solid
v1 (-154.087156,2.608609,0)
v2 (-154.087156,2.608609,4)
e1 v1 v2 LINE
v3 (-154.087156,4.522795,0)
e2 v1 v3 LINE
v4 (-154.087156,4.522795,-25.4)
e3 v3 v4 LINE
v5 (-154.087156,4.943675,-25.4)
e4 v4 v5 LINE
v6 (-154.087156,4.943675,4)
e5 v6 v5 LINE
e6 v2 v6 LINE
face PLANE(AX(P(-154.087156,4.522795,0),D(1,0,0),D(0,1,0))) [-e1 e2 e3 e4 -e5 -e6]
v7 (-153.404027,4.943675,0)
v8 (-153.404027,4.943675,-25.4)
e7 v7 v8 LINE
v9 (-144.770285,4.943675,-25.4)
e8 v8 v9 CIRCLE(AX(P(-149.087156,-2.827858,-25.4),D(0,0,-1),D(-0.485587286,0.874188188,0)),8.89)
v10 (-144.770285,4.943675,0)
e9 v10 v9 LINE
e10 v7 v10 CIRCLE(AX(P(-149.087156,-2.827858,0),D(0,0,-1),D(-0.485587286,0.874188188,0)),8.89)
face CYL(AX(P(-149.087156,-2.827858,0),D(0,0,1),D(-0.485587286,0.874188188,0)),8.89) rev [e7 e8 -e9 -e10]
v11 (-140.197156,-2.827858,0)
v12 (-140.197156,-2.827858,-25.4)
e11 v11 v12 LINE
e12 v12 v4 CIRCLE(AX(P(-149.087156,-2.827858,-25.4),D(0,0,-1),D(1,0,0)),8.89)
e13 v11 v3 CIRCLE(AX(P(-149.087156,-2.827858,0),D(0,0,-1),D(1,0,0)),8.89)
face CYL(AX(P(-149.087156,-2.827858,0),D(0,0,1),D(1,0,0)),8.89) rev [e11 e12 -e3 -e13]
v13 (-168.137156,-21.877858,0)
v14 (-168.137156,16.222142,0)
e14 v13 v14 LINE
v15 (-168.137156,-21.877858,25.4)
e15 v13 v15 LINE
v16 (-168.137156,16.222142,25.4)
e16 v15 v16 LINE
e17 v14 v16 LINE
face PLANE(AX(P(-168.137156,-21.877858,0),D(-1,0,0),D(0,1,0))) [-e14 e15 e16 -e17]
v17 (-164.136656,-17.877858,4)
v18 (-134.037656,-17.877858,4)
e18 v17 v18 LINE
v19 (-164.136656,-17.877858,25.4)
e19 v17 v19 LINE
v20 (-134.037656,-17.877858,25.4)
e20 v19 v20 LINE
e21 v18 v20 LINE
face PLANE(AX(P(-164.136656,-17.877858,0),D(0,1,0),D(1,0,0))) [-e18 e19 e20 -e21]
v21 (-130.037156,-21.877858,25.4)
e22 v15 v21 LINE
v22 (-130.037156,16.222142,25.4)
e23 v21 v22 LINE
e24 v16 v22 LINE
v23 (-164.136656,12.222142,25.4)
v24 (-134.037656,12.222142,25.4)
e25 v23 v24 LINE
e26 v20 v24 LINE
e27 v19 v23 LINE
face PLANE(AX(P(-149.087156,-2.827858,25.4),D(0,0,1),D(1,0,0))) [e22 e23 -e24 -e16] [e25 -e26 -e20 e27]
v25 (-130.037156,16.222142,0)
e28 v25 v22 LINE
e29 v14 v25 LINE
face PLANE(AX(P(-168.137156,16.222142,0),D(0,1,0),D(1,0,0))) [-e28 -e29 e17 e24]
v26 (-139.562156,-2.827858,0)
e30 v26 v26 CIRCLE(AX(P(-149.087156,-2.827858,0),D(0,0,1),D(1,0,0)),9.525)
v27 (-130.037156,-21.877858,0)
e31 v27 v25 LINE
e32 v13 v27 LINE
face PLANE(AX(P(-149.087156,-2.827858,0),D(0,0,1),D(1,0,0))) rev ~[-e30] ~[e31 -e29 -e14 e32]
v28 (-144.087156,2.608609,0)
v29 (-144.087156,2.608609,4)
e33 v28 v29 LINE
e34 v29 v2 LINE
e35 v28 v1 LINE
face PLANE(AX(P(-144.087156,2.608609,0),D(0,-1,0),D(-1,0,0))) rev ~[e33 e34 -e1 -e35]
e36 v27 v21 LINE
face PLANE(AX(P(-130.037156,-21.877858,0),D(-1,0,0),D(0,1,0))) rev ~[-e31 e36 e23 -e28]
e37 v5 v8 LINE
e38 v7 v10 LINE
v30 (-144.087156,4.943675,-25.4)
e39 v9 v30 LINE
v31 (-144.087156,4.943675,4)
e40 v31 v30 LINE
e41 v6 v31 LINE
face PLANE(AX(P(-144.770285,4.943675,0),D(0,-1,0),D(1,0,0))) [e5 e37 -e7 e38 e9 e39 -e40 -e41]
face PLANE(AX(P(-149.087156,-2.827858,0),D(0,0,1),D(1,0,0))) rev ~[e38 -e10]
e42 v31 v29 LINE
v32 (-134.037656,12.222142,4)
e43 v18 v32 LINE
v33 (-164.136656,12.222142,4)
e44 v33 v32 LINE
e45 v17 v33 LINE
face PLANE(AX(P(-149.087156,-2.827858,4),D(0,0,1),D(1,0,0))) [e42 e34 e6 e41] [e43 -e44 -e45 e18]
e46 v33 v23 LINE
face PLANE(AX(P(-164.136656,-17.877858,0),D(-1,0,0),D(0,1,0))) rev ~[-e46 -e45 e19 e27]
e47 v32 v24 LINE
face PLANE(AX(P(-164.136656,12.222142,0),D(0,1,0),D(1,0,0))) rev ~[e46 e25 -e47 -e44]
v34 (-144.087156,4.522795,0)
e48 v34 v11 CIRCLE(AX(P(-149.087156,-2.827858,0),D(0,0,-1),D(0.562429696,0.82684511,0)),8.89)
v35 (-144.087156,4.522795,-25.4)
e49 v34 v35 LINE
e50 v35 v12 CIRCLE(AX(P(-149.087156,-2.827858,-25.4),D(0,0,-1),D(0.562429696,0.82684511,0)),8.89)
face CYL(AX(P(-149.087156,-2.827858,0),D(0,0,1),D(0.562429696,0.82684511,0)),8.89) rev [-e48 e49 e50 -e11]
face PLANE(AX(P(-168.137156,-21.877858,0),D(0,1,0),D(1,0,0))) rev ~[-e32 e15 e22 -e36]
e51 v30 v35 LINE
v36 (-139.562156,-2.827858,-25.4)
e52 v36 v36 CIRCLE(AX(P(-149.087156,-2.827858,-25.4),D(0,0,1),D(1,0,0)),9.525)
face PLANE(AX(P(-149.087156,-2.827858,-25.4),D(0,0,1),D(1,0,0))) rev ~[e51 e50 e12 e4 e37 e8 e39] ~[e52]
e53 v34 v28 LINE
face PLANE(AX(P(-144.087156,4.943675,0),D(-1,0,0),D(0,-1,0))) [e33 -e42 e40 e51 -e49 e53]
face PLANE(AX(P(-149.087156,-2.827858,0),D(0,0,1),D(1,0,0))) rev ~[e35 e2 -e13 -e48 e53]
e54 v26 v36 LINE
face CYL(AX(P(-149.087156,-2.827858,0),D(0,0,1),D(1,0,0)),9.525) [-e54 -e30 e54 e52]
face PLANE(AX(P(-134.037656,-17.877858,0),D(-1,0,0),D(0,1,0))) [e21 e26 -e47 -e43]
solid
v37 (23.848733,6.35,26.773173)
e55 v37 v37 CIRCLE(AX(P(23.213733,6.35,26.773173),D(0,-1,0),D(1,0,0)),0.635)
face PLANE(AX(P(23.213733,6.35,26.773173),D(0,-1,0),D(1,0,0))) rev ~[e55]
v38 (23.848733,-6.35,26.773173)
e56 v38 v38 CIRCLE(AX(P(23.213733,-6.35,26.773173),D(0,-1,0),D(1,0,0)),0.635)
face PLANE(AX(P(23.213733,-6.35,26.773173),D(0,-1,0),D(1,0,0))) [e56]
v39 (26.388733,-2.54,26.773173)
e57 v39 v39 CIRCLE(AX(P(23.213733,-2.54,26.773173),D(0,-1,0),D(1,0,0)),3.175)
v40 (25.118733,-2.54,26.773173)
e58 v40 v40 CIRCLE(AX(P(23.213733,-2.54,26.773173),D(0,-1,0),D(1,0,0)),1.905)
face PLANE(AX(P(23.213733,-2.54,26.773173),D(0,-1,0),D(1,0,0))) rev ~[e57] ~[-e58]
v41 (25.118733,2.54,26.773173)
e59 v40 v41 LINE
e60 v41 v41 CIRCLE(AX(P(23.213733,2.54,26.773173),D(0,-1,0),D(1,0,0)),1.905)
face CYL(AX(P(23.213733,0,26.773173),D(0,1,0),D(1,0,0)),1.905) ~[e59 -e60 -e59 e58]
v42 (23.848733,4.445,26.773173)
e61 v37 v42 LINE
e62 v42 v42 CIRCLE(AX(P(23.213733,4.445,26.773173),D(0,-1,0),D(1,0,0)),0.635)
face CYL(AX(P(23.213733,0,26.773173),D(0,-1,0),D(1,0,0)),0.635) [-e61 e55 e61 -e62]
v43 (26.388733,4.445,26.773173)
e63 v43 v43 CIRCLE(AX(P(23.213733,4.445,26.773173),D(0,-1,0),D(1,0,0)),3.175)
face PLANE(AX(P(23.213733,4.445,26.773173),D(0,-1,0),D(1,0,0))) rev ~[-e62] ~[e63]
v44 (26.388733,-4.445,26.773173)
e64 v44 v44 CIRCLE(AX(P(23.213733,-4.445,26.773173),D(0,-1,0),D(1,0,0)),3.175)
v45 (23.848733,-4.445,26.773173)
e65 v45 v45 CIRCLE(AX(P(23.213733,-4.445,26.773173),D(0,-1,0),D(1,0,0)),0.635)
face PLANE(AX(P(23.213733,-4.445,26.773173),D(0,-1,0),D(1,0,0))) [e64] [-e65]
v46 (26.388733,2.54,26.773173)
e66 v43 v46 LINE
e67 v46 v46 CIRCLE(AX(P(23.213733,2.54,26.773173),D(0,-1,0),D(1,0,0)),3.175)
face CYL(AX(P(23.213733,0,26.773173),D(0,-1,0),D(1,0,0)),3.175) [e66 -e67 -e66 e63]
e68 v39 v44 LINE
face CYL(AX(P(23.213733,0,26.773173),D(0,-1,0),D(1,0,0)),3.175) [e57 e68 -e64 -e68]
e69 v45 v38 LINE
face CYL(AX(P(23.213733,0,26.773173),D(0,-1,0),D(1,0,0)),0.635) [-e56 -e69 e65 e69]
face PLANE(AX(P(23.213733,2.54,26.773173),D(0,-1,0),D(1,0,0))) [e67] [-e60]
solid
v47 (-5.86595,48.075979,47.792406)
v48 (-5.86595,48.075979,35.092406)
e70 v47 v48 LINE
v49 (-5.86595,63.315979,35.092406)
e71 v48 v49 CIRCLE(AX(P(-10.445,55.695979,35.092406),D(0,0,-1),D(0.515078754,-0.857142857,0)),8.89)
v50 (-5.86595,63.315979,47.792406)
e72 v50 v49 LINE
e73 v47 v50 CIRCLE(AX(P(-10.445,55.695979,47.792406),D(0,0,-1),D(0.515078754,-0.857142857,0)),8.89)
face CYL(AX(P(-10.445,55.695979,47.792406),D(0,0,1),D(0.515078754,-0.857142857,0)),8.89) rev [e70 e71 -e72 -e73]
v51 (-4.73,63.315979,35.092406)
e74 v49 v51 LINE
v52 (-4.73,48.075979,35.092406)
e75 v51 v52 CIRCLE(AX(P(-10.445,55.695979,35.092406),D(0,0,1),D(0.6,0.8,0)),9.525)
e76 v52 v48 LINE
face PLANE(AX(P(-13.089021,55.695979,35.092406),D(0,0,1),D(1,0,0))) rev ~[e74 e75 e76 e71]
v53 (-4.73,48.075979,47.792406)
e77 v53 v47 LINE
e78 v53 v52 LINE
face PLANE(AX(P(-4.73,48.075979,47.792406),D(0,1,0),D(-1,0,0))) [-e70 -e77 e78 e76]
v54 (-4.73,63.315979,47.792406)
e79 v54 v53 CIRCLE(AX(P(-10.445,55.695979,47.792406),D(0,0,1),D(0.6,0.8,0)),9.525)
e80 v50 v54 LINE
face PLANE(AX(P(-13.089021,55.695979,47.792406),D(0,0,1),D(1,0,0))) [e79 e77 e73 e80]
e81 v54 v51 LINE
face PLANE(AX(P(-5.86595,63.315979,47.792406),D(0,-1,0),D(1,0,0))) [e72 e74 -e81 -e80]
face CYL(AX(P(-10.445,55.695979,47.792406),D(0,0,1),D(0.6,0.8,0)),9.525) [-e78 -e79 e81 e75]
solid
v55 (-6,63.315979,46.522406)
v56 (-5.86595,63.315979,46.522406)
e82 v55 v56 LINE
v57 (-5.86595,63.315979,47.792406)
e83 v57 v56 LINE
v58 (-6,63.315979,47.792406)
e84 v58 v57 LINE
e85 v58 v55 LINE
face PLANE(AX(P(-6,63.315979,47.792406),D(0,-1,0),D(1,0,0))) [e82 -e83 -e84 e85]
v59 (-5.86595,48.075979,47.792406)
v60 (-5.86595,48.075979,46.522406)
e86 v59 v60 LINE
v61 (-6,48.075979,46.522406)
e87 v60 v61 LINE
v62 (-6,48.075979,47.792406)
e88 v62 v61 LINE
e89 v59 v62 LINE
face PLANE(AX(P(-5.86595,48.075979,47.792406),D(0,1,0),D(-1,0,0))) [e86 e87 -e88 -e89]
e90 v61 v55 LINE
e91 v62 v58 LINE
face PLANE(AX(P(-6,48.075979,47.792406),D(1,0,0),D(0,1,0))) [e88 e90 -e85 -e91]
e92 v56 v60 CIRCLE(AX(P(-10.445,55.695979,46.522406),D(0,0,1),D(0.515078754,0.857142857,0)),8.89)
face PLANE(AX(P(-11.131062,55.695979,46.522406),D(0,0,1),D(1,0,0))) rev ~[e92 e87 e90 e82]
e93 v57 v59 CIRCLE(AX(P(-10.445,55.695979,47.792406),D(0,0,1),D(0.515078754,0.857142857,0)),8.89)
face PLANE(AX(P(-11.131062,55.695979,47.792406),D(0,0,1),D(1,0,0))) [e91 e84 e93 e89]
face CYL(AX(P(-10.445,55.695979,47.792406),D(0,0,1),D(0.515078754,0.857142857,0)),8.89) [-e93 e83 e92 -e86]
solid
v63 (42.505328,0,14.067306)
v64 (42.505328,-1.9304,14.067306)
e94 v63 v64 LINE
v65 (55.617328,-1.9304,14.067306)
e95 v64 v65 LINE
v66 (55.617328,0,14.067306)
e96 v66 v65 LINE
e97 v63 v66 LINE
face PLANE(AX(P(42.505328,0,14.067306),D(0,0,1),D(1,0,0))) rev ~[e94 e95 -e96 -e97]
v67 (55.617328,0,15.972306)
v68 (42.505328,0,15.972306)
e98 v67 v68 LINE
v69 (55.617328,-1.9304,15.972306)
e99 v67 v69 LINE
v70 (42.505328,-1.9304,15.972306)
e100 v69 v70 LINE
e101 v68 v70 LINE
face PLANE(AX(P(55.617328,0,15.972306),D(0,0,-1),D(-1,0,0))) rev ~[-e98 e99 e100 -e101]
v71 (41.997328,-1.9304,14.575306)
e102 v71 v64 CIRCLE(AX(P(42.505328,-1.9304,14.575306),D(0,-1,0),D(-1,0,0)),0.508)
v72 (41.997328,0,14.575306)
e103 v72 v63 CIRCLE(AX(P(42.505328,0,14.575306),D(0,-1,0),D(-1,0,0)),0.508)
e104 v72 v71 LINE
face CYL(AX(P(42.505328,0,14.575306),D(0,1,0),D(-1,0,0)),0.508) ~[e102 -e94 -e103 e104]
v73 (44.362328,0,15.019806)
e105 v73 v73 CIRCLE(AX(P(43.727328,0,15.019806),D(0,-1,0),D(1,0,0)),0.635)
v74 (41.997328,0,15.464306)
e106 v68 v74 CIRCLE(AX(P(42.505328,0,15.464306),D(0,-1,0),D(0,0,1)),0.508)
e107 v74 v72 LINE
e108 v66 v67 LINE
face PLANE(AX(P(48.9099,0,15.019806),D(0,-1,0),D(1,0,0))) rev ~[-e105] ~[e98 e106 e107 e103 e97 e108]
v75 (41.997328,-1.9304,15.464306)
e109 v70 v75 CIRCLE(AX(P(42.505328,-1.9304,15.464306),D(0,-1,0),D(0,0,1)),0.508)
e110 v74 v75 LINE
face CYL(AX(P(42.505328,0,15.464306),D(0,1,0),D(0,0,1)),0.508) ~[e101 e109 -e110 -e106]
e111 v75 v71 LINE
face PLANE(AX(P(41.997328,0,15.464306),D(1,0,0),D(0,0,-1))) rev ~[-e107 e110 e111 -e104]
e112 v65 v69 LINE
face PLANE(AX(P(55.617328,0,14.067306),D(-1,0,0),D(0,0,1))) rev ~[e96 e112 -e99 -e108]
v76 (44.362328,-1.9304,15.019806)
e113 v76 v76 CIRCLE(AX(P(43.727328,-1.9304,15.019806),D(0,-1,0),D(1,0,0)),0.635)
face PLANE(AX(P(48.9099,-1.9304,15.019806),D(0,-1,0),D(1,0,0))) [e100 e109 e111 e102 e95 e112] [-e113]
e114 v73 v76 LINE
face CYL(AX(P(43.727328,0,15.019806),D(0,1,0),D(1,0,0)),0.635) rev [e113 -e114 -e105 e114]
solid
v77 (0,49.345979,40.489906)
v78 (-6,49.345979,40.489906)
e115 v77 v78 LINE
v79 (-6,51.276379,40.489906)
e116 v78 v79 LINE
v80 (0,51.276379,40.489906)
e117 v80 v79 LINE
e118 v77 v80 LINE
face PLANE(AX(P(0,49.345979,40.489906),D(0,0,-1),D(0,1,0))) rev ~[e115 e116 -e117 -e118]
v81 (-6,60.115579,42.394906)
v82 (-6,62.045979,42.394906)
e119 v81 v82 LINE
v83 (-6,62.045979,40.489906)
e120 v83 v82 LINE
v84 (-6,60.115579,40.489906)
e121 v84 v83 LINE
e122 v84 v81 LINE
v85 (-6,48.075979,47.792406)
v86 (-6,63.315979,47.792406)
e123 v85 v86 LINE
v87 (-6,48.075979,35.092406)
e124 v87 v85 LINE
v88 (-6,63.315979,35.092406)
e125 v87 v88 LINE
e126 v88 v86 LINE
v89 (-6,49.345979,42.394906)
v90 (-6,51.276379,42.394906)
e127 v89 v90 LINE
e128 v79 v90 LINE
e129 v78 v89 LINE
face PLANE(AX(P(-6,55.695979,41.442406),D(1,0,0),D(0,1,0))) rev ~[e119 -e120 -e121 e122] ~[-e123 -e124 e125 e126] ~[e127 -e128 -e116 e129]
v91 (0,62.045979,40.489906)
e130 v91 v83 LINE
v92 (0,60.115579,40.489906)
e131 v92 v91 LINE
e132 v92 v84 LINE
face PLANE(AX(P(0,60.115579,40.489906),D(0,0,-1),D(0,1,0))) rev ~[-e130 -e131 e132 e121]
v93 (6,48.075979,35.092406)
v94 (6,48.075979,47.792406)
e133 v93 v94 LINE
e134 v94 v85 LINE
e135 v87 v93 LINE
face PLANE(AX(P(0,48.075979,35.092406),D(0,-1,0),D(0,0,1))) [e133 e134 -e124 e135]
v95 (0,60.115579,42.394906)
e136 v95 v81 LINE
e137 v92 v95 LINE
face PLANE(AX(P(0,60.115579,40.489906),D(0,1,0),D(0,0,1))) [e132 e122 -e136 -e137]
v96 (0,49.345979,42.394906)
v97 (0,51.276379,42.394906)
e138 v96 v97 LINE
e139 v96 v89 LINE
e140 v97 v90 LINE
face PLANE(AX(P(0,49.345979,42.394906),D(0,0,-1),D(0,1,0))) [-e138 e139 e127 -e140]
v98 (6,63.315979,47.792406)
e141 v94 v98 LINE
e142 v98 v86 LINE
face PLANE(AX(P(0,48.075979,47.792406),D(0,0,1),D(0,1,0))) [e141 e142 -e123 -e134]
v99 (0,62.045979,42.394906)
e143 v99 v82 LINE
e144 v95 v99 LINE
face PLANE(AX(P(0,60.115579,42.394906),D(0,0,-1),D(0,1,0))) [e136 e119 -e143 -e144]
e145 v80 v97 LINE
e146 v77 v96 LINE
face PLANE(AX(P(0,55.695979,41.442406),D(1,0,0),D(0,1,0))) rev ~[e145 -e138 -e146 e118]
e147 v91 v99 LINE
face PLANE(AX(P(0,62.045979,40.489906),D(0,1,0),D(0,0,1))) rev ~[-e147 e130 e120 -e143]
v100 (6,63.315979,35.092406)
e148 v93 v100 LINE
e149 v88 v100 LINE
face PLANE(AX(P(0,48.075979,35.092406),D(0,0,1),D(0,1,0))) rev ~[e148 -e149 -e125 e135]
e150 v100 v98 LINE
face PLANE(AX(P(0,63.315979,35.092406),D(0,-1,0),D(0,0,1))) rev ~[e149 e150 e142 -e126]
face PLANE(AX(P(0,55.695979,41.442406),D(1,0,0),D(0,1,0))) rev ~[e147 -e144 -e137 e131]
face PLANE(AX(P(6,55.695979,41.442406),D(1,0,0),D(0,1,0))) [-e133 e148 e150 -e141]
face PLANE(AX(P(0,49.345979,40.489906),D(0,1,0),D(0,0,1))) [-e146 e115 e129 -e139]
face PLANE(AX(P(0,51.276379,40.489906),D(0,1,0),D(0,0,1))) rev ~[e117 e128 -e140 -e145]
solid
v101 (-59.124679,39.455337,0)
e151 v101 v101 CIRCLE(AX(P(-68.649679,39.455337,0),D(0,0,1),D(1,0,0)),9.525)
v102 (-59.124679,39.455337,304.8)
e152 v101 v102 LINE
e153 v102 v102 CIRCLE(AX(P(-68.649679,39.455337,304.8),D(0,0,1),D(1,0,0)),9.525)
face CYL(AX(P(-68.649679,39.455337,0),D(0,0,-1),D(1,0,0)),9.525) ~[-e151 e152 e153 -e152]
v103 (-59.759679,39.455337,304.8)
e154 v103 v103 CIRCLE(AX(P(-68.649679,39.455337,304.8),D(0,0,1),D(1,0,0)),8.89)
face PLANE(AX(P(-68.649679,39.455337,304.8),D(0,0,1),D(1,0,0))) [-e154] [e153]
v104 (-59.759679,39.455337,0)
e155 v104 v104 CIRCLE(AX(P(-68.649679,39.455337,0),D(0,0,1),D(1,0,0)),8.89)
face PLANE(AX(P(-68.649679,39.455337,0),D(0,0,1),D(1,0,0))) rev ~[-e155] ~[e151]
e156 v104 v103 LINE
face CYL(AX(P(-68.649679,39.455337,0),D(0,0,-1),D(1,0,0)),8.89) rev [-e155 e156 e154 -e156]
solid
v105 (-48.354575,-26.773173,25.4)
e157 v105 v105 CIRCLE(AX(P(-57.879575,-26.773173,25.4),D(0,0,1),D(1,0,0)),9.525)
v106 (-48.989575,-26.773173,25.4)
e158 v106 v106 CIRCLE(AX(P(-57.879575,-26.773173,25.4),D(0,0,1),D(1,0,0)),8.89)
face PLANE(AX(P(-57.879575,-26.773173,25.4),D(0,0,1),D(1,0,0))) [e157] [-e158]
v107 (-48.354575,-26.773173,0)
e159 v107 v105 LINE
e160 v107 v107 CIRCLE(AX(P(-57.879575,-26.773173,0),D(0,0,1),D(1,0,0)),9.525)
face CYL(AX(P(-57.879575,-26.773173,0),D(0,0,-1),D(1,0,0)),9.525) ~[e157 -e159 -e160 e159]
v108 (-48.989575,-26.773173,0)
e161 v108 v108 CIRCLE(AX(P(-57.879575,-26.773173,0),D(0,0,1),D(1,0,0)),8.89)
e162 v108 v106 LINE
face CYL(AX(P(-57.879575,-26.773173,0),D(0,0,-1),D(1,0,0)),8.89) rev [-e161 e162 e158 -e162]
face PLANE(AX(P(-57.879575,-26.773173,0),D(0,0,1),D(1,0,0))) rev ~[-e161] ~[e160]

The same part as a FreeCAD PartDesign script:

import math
import FreeCAD as App
import Part
import Sketcher
Q = App.Units.Quantity


def add_polygon(sketch, points):
    """Adds a closed chain of lines whose ends are joined by coincident constraints."""
    first, n = sketch.GeometryCount, len(points)
    for a, b in zip(points, points[1:] + points[:1]):
        sketch.addGeometry(Part.LineSegment(App.Vector(*a, 0), App.Vector(*b, 0)), False)
    for i in range(n):
        sketch.addConstraint(Sketcher.Constraint("Coincident", first + i, 2, first + (i + 1) % n, 1))

doc = App.newDocument("Part")
params = doc.addObject("Spreadsheet::Sheet", "Params")
for row, (alias, value) in enumerate([
    ("sketch1_diameter", "0.7 in"),
    ("sketch1_diameter2", "0.75 in"),
    ("pad1_length", "1 in"),
    ("sketch2_diameter", "0.05 in"),
    ("pad2_length", "0.5 in"),
    ("sketch3_diameter", "0.25 in"),
    ("sketch3_diameter2", "0.05 in"),
    ("pad3_length", "0.35 in"),
    ("sketch4_diameter", "0.25 in"),
    ("sketch4_diameter2", "0.15 in"),
    ("pocket1_length", "0.2 in"),
    ("sketch5_diameter", "0.05 in"),
    ("sketch5_radius", "0.02 in"),
    ("sketch5_height", "0.075 in"),
    ("pad4_length", "0.076 in"),
    ("sketch6_width", "0.6 in"),
    ("sketch6_height", "0.5 in"),
    ("sketch6_width2", "0.076 in"),
    ("sketch6_height2", "0.075 in"),
    ("pad5_length", "6 mm"),
    ("sketch7_width", "0.6 in"),
    ("sketch7_height", "0.5 in"),
    ("pad6_length", "6 mm"),
    ("sketch8_radius", "0.35 in"),
    ("sketch8_radius2", "0.375 in"),
    ("pad7_length", "0.5 in"),
    ("sketch9_radius", "0.35 in"),
    ("sketch9_height", "0.6 in"),
    ("pad8_length", "0.05 in"),
    ("sketch10_width", "1.5 in"),
    ("sketch10_width2", "1.185 in"),
    ("pad9_length", "1 in"),
    ("sketch11_width", "1.185 in"),
    ("pad10_length", "4 mm"),
    ("sketch12_diameter", "0.75 in"),
    ("sketch12_radius", "0.35 in"),
    ("pad11_length", "1 in"),
    ("sketch13_diameter", "0.7 in"),
    ("sketch13_diameter2", "0.75 in"),
    ("pad12_length", "12 in"),
], start=1):
    params.set(f"A{row}", alias)
    params.set(f"B{row}", "=" + value)
    params.setAlias(f"B{row}", alias)

body = doc.addObject("PartDesign::Body", "Body")

# Sketch on XY plane
sketch1 = body.newObject("Sketcher::SketchObject", "Sketch")
sketch1.AttachmentSupport = (doc.getObject("XY_Plane"), [""])
sketch1.MapMode = "FlatFace"
sketch1.addGeometry(Part.Circle(App.Vector(-57.879575, -26.773173, 0), App.Vector(0, 0, 1), 9.525), False)
sketch1.addGeometry(Part.Circle(App.Vector(-57.879575, -26.773173, 0), App.Vector(0, 0, 1), 8.89), False)
sketch1.addConstraint(Sketcher.Constraint("Coincident", 1, 3, 0, 3))
sketch1.addConstraint(Sketcher.Constraint("Diameter", 1, Q("0.7 in")))
sketch1.addConstraint(Sketcher.Constraint("Diameter", 0, Q("0.75 in")))
sketch1.addConstraint(Sketcher.Constraint("DistanceX", 0, 3, -1, 1, Q("57.879575 mm")))
sketch1.addConstraint(Sketcher.Constraint("DistanceY", 0, 3, -1, 1, Q("26.773173 mm")))
sketch1.setExpression("Constraints[1]", "Params.sketch1_diameter")
sketch1.setExpression("Constraints[2]", "Params.sketch1_diameter2")
pad1 = body.newObject("PartDesign::Pad", "Pad")
pad1.Profile = sketch1
pad1.setExpression("Length", "Params.pad1_length")
body2 = doc.addObject("PartDesign::Body", "Body001")

# Sketch on XZ plane
sketch2 = body2.newObject("Sketcher::SketchObject", "Sketch001")
sketch2.AttachmentSupport = (doc.getObject("XZ_Plane001"), [""])
sketch2.MapMode = "FlatFace"
sketch2.addGeometry(Part.Circle(App.Vector(23.213733, 26.773173, 0), App.Vector(0, 0, 1), 0.635), False)
sketch2.addConstraint(Sketcher.Constraint("Diameter", 0, Q("0.05 in")))
sketch2.addConstraint(Sketcher.Constraint("DistanceX", -1, 1, 0, 3, Q("23.213733 mm")))
sketch2.addConstraint(Sketcher.Constraint("DistanceY", -1, 1, 0, 3, Q("26.773173 mm")))
sketch2.setExpression("Constraints[0]", "Params.sketch2_diameter")
pad2 = body2.newObject("PartDesign::Pad", "Pad001")
pad2.Profile = sketch2
pad2.setExpression("Length", "Params.pad2_length")
pad2.Midplane = True

# Sketch on XZ plane
sketch3 = body2.newObject("Sketcher::SketchObject", "Sketch002")
sketch3.AttachmentSupport = (doc.getObject("XZ_Plane001"), [""])
sketch3.MapMode = "FlatFace"
sketch3.addGeometry(Part.Circle(App.Vector(23.213733, 26.773173, 0), App.Vector(0, 0, 1), 3.175), False)
sketch3.addGeometry(Part.Circle(App.Vector(23.213733, 26.773173, 0), App.Vector(0, 0, 1), 0.635), False)
sketch3.addConstraint(Sketcher.Constraint("Coincident", 1, 3, 0, 3))
sketch3.addConstraint(Sketcher.Constraint("Diameter", 0, Q("0.25 in")))
sketch3.addConstraint(Sketcher.Constraint("Diameter", 1, Q("0.05 in")))
sketch3.addConstraint(Sketcher.Constraint("DistanceX", -1, 1, 0, 3, Q("23.213733 mm")))
sketch3.addConstraint(Sketcher.Constraint("DistanceY", -1, 1, 0, 3, Q("26.773173 mm")))
sketch3.setExpression("Constraints[1]", "Params.sketch3_diameter")
sketch3.setExpression("Constraints[2]", "Params.sketch3_diameter2")
pad3 = body2.newObject("PartDesign::Pad", "Pad002")
pad3.Profile = sketch3
pad3.setExpression("Length", "Params.pad3_length")
pad3.Midplane = True

# Sketch on XZ plane
sketch4 = body2.newObject("Sketcher::SketchObject", "Sketch003")
sketch4.AttachmentSupport = (doc.getObject("XZ_Plane001"), [""])
sketch4.MapMode = "FlatFace"
sketch4.addGeometry(Part.Circle(App.Vector(23.213733, 26.773173, 0), App.Vector(0, 0, 1), 3.175), False)
sketch4.addGeometry(Part.Circle(App.Vector(23.213733, 26.773173, 0), App.Vector(0, 0, 1), 1.905), False)
sketch4.addConstraint(Sketcher.Constraint("Coincident", 1, 3, 0, 3))
sketch4.addConstraint(Sketcher.Constraint("Diameter", 0, Q("0.25 in")))
sketch4.addConstraint(Sketcher.Constraint("Diameter", 1, Q("0.15 in")))
sketch4.addConstraint(Sketcher.Constraint("DistanceX", -1, 1, 0, 3, Q("23.213733 mm")))
sketch4.addConstraint(Sketcher.Constraint("DistanceY", -1, 1, 0, 3, Q("26.773173 mm")))
sketch4.setExpression("Constraints[1]", "Params.sketch4_diameter")
sketch4.setExpression("Constraints[2]", "Params.sketch4_diameter2")
pocket1 = body2.newObject("PartDesign::Pocket", "Pocket")
pocket1.Profile = sketch4
pocket1.setExpression("Length", "Params.pocket1_length")
pocket1.Midplane = True
body3 = doc.addObject("PartDesign::Body", "Body002")

# Sketch on XZ plane
sketch5 = body3.newObject("Sketcher::SketchObject", "Sketch004")
sketch5.AttachmentSupport = (doc.getObject("XZ_Plane002"), [""])
sketch5.MapMode = "FlatFace"
sketch5.addGeometry(Part.ArcOfCircle(Part.Circle(App.Vector(42.505328, 14.575306, 0), App.Vector(0, 0, 1), 0.508), math.radians(180), math.radians(270)), False)
sketch5.addGeometry(Part.LineSegment(App.Vector(42.505328, 14.067306, 0), App.Vector(55.617328, 14.067306, 0)), False)
sketch5.addGeometry(Part.LineSegment(App.Vector(55.617328, 14.067306, 0), App.Vector(55.617328, 15.972306, 0)), False)
sketch5.addGeometry(Part.LineSegment(App.Vector(55.617328, 15.972306, 0), App.Vector(42.505328, 15.972306, 0)), False)
sketch5.addGeometry(Part.ArcOfCircle(Part.Circle(App.Vector(42.505328, 15.464306, 0), App.Vector(0, 0, 1), 0.508), math.radians(90), math.radians(180)), False)
sketch5.addGeometry(Part.LineSegment(App.Vector(41.997328, 15.464306, 0), App.Vector(41.997328, 14.575306, 0)), False)
sketch5.addGeometry(Part.Circle(App.Vector(43.727328, 15.019806, 0), App.Vector(0, 0, 1), 0.635), False)
sketch5.addConstraint(Sketcher.Constraint("Tangent", 0, 2, 1, 1))
sketch5.addConstraint(Sketcher.Constraint("Coincident", 1, 2, 2, 1))
sketch5.addConstraint(Sketcher.Constraint("Coincident", 2, 2, 3, 1))
sketch5.addConstraint(Sketcher.Constraint("Tangent", 3, 2, 4, 1))
sketch5.addConstraint(Sketcher.Constraint("Tangent", 4, 2, 5, 1))
sketch5.addConstraint(Sketcher.Constraint("Tangent", 5, 2, 0, 1))
sketch5.addConstraint(Sketcher.Constraint("Horizontal", 1))
sketch5.addConstraint(Sketcher.Constraint("Vertical", 2))
sketch5.addConstraint(Sketcher.Constraint("Horizontal", 3))
sketch5.addConstraint(Sketcher.Constraint("Vertical", 5))
sketch5.addConstraint(Sketcher.Constraint("Equal", 0, 4))
sketch5.addConstraint(Sketcher.Constraint("Diameter", 6, Q("0.05 in")))
sketch5.addConstraint(Sketcher.Constraint("Radius", 0, Q("0.02 in")))
sketch5.addConstraint(Sketcher.Constraint("DistanceY", 2, 1, 2, 2, Q("0.075 in")))
sketch5.addConstraint(Sketcher.Constraint("DistanceX", 1, 1, 1, 2, Q("13.112 mm")))
sketch5.addConstraint(Sketcher.Constraint("DistanceY", 0, 3, 6, 3, Q("0.0175 in")))
sketch5.addConstraint(Sketcher.Constraint("DistanceX", 0, 3, 6, 3, Q("1.222 mm")))
sketch5.addConstraint(Sketcher.Constraint("DistanceX", -1, 1, 0, 3, Q("42.505328 mm")))
sketch5.addConstraint(Sketcher.Constraint("DistanceY", -1, 1, 0, 3, Q("14.575306 mm")))
sketch5.setExpression("Constraints[11]", "Params.sketch5_diameter")
sketch5.setExpression("Constraints[12]", "Params.sketch5_radius")
sketch5.setExpression("Constraints[13]", "Params.sketch5_height")
pad4 = body3.newObject("PartDesign::Pad", "Pad003")
pad4.Profile = sketch5
pad4.setExpression("Length", "Params.pad4_length")
body4 = doc.addObject("PartDesign::Body", "Body003")

# Sketch on YZ plane
sketch6 = body4.newObject("Sketcher::SketchObject", "Sketch005")
sketch6.AttachmentSupport = (doc.getObject("YZ_Plane003"), [""])
sketch6.MapMode = "FlatFace"
add_polygon(sketch6, [(48.075979, 47.792406), (48.075979, 35.092406), (63.315979, 35.092406), (63.315979, 47.792406)])  # lines 0-3
add_polygon(sketch6, [(51.276379, 40.489906), (49.345979, 40.489906), (49.345979, 42.394906), (51.276379, 42.394906)])  # lines 4-7
add_polygon(sketch6, [(62.045979, 40.489906), (60.115579, 40.489906), (60.115579, 42.394906), (62.045979, 42.394906)])  # lines 8-11
sketch6.addConstraint(Sketcher.Constraint("Vertical", 0))
sketch6.addConstraint(Sketcher.Constraint("Horizontal", 1))
sketch6.addConstraint(Sketcher.Constraint("Vertical", 2))
sketch6.addConstraint(Sketcher.Constraint("Horizontal", 3))
sketch6.addConstraint(Sketcher.Constraint("Horizontal", 4))
sketch6.addConstraint(Sketcher.Constraint("Vertical", 5))
sketch6.addConstraint(Sketcher.Constraint("Horizontal", 6))
sketch6.addConstraint(Sketcher.Constraint("Vertical", 7))
sketch6.addConstraint(Sketcher.Constraint("Horizontal", 8))
sketch6.addConstraint(Sketcher.Constraint("Vertical", 9))
sketch6.addConstraint(Sketcher.Constraint("Horizontal", 10))
sketch6.addConstraint(Sketcher.Constraint("Vertical", 11))
sketch6.addConstraint(Sketcher.Constraint("Horizontal", 7, 2, 8, 2))
sketch6.addConstraint(Sketcher.Constraint("Horizontal", 6, 2, 9, 2))
sketch6.addConstraint(Sketcher.Constraint("Equal", 6, 8))
sketch6.addConstraint(Sketcher.Constraint("DistanceX", 1, 1, 1, 2, Q("0.6 in")))
sketch6.addConstraint(Sketcher.Constraint("DistanceY", 0, 2, 0, 1, Q("0.5 in")))
sketch6.addConstraint(Sketcher.Constraint("DistanceX", 4, 2, 4, 1, Q("0.076 in")))
sketch6.addConstraint(Sketcher.Constraint("DistanceY", 5, 1, 5, 2, Q("0.075 in")))
sketch6.addConstraint(Sketcher.Constraint("DistanceX", 0, 2, 4, 2, Q("0.05 in")))
sketch6.addConstraint(Sketcher.Constraint("DistanceX", 10, 2, 2, 2, Q("0.05 in")))
sketch6.addConstraint(Sketcher.Constraint("DistanceY", 0, 2, 4, 2, Q("0.2125 in")))
sketch6.addConstraint(Sketcher.Constraint("DistanceX", -1, 1, 0, 2, Q("48.075979 mm")))
sketch6.addConstraint(Sketcher.Constraint("DistanceY", -1, 1, 0, 2, Q("35.092406 mm")))
sketch6.setExpression("Constraints[27]", "Params.sketch6_width")
sketch6.setExpression("Constraints[28]", "Params.sketch6_height")
sketch6.setExpression("Constraints[29]", "Params.sketch6_width2")
sketch6.setExpression("Constraints[30]", "Params.sketch6_height2")
pad5 = body4.newObject("PartDesign::Pad", "Pad004")
pad5.Profile = sketch6
pad5.setExpression("Length", "Params.pad5_length")
pad5.Reversed = True

# Sketch on YZ plane
sketch7 = body4.newObject("Sketcher::SketchObject", "Sketch006")
sketch7.AttachmentSupport = (doc.getObject("YZ_Plane003"), [""])
sketch7.MapMode = "FlatFace"
add_polygon(sketch7, [(48.075979, 47.792406), (48.075979, 35.092406), (63.315979, 35.092406), (63.315979, 47.792406)])  # lines 0-3
sketch7.addConstraint(Sketcher.Constraint("Vertical", 0))
sketch7.addConstraint(Sketcher.Constraint("Horizontal", 1))
sketch7.addConstraint(Sketcher.Constraint("Vertical", 2))
sketch7.addConstraint(Sketcher.Constraint("Horizontal", 3))
sketch7.addConstraint(Sketcher.Constraint("DistanceX", 1, 1, 1, 2, Q("0.6 in")))
sketch7.addConstraint(Sketcher.Constraint("DistanceY", 0, 2, 0, 1, Q("0.5 in")))
sketch7.addConstraint(Sketcher.Constraint("DistanceX", -1, 1, 0, 2, Q("48.075979 mm")))
sketch7.addConstraint(Sketcher.Constraint("DistanceY", -1, 1, 0, 2, Q("35.092406 mm")))
sketch7.setExpression("Constraints[8]", "Params.sketch7_width")
sketch7.setExpression("Constraints[9]", "Params.sketch7_height")
pad6 = body4.newObject("PartDesign::Pad", "Pad005")
pad6.Profile = sketch7
pad6.setExpression("Length", "Params.pad6_length")
body5 = doc.addObject("PartDesign::Body", "Body004")

# Sketch on XY plane
sketch8 = body5.newObject("Sketcher::SketchObject", "Sketch007")
sketch8.AttachmentSupport = (doc.getObject("XY_Plane004"), [""])
sketch8.MapMode = "FlatFace"
sketch8.AttachmentOffset = App.Placement(App.Vector(0, 0, 47.792406), App.Rotation())
sketch8.addGeometry(Part.LineSegment(App.Vector(-5.86595, 63.315979, 0), App.Vector(-4.73, 63.315979, 0)), False)
sketch8.addGeometry(Part.ArcOfCircle(Part.Circle(App.Vector(-10.445, 55.695979, 0), App.Vector(0, 0, 1), 9.525), math.radians(53.130102), math.radians(306.869898)), False)
sketch8.addGeometry(Part.LineSegment(App.Vector(-4.73, 48.075979, 0), App.Vector(-5.86595, 48.075979, 0)), False)
sketch8.addGeometry(Part.ArcOfCircle(Part.Circle(App.Vector(-10.445, 55.695979, 0), App.Vector(0, 0, 1), 8.89), math.radians(58.997281), math.radians(301.002719)), False)
sketch8.addConstraint(Sketcher.Constraint("Coincident", 0, 2, 1, 1))
sketch8.addConstraint(Sketcher.Constraint("Coincident", 1, 2, 2, 1))
sketch8.addConstraint(Sketcher.Constraint("Coincident", 2, 2, 3, 2))
sketch8.addConstraint(Sketcher.Constraint("Coincident", 3, 1, 0, 1))
sketch8.addConstraint(Sketcher.Constraint("Horizontal", 0))
sketch8.addConstraint(Sketcher.Constraint("Horizontal", 2))
sketch8.addConstraint(Sketcher.Constraint("Coincident", 3, 3, 1, 3))
sketch8.addConstraint(Sketcher.Constraint("Vertical", 0, 2, 1, 2))
sketch8.addConstraint(Sketcher.Constraint("Radius", 3, Q("0.35 in")))
sketch8.addConstraint(Sketcher.Constraint("Radius", 1, Q("0.375 in")))
sketch8.addConstraint(Sketcher.Constraint("DistanceY", 1, 3, 0, 2, Q("0.3 in")))
sketch8.addConstraint(Sketcher.Constraint("DistanceX", 1, 3, -1, 1, Q("10.445 mm")))
sketch8.addConstraint(Sketcher.Constraint("DistanceY", -1, 1, 1, 3, Q("55.695979 mm")))
sketch8.setExpression("Constraints[8]", "Params.sketch8_radius")
sketch8.setExpression("Constraints[9]", "Params.sketch8_radius2")
pad7 = body5.newObject("PartDesign::Pad", "Pad006")
pad7.Profile = sketch8
pad7.setExpression("Length", "Params.pad7_length")
pad7.Reversed = True
body6 = doc.addObject("PartDesign::Body", "Body005")

# Sketch on XY plane
sketch9 = body6.newObject("Sketcher::SketchObject", "Sketch008")
sketch9.AttachmentSupport = (doc.getObject("XY_Plane005"), [""])
sketch9.MapMode = "FlatFace"
sketch9.AttachmentOffset = App.Placement(App.Vector(0, 0, 47.792406), App.Rotation())
sketch9.addGeometry(Part.LineSegment(App.Vector(-6, 63.315979, 0), App.Vector(-5.86595, 63.315979, 0)), False)
sketch9.addGeometry(Part.ArcOfCircle(Part.Circle(App.Vector(-10.445, 55.695979, 0), App.Vector(0, 0, 1), 8.89), math.radians(58.997281), math.radians(301.002719)), False)
sketch9.addGeometry(Part.LineSegment(App.Vector(-5.86595, 48.075979, 0), App.Vector(-6, 48.075979, 0)), False)
sketch9.addGeometry(Part.LineSegment(App.Vector(-6, 48.075979, 0), App.Vector(-6, 63.315979, 0)), False)
sketch9.addConstraint(Sketcher.Constraint("Coincident", 0, 2, 1, 1))
sketch9.addConstraint(Sketcher.Constraint("Coincident", 1, 2, 2, 1))
sketch9.addConstraint(Sketcher.Constraint("Coincident", 2, 2, 3, 1))
sketch9.addConstraint(Sketcher.Constraint("Coincident", 3, 2, 0, 1))
sketch9.addConstraint(Sketcher.Constraint("Horizontal", 0))
sketch9.addConstraint(Sketcher.Constraint("Horizontal", 2))
sketch9.addConstraint(Sketcher.Constraint("Vertical", 3))
sketch9.addConstraint(Sketcher.Constraint("Vertical", 0, 2, 1, 2))
sketch9.addConstraint(Sketcher.Constraint("Radius", 1, Q("0.35 in")))
sketch9.addConstraint(Sketcher.Constraint("DistanceY", 3, 1, 3, 2, Q("0.6 in")))
sketch9.addConstraint(Sketcher.Constraint("DistanceX", 1, 3, 2, 2, Q("0.175 in")))
sketch9.addConstraint(Sketcher.Constraint("DistanceX", 1, 3, -1, 1, Q("10.445 mm")))
sketch9.addConstraint(Sketcher.Constraint("DistanceY", -1, 1, 1, 3, Q("55.695979 mm")))
sketch9.setExpression("Constraints[8]", "Params.sketch9_radius")
sketch9.setExpression("Constraints[9]", "Params.sketch9_height")
pad8 = body6.newObject("PartDesign::Pad", "Pad007")
pad8.Profile = sketch9
pad8.setExpression("Length", "Params.pad8_length")
pad8.Reversed = True
body7 = doc.addObject("PartDesign::Body", "Body006")

# Sketch on XY plane
sketch10 = body7.newObject("Sketcher::SketchObject", "Sketch009")
sketch10.AttachmentSupport = (doc.getObject("XY_Plane006"), [""])
sketch10.MapMode = "FlatFace"
add_polygon(sketch10, [(-168.137156, 16.222142), (-168.137156, -21.877858), (-130.037156, -21.877858), (-130.037156, 16.222142)])  # lines 0-3
add_polygon(sketch10, [(-134.037656, -17.877858), (-164.136656, -17.877858), (-164.136656, 12.222142), (-134.037656, 12.222142)])  # lines 4-7
sketch10.addConstraint(Sketcher.Constraint("Vertical", 0))
sketch10.addConstraint(Sketcher.Constraint("Horizontal", 1))
sketch10.addConstraint(Sketcher.Constraint("Vertical", 2))
sketch10.addConstraint(Sketcher.Constraint("Horizontal", 3))
sketch10.addConstraint(Sketcher.Constraint("Horizontal", 4))
sketch10.addConstraint(Sketcher.Constraint("Vertical", 5))
sketch10.addConstraint(Sketcher.Constraint("Horizontal", 6))
sketch10.addConstraint(Sketcher.Constraint("Vertical", 7))
sketch10.addConstraint(Sketcher.Constraint("Equal", 3, 0))
sketch10.addConstraint(Sketcher.Constraint("DistanceX", 1, 1, 1, 2, Q("1.5 in")))
sketch10.addConstraint(Sketcher.Constraint("DistanceX", 4, 2, 4, 1, Q("1.185 in")))
sketch10.addConstraint(Sketcher.Constraint("DistanceY", 5, 1, 5, 2, Q("30.1 mm")))
sketch10.addConstraint(Sketcher.Constraint("DistanceX", 0, 2, 4, 2, Q("0.1575 in")))
sketch10.addConstraint(Sketcher.Constraint("DistanceY", 0, 2, 4, 2, Q("4 mm")))
sketch10.addConstraint(Sketcher.Constraint("DistanceY", 0, 2, -1, 1, Q("21.877858 mm")))
sketch10.addConstraint(Sketcher.Constraint("DistanceX", 0, 2, -1, 1, Q("168.137156 mm")))
sketch10.setExpression("Constraints[17]", "Params.sketch10_width")
sketch10.setExpression("Constraints[18]", "Params.sketch10_width2")
pad9 = body7.newObject("PartDesign::Pad", "Pad008")
pad9.Profile = sketch10
pad9.setExpression("Length", "Params.pad9_length")

# Sketch on XY plane
sketch11 = body7.newObject("Sketcher::SketchObject", "Sketch010")
sketch11.AttachmentSupport = (doc.getObject("XY_Plane006"), [""])
sketch11.MapMode = "FlatFace"
add_polygon(sketch11, [(-164.136656, 12.222142), (-164.136656, -17.877858), (-134.037656, -17.877858), (-134.037656, 12.222142)])  # lines 0-3
add_polygon(sketch11, [(-144.087156, 4.943675), (-144.087156, 2.608609), (-154.087156, 2.608609), (-154.087156, 4.943675)])  # lines 4-7
sketch11.addConstraint(Sketcher.Constraint("Vertical", 0))
sketch11.addConstraint(Sketcher.Constraint("Horizontal", 1))
sketch11.addConstraint(Sketcher.Constraint("Vertical", 2))
sketch11.addConstraint(Sketcher.Constraint("Horizontal", 3))
sketch11.addConstraint(Sketcher.Constraint("Vertical", 4))
sketch11.addConstraint(Sketcher.Constraint("Horizontal", 5))
sketch11.addConstraint(Sketcher.Constraint("Vertical", 6))
sketch11.addConstraint(Sketcher.Constraint("Horizontal", 7))
sketch11.addConstraint(Sketcher.Constraint("DistanceX", 1, 1, 1, 2, Q("1.185 in")))
sketch11.addConstraint(Sketcher.Constraint("DistanceX", 5, 2, 5, 1, Q("10 mm")))
sketch11.addConstraint(Sketcher.Constraint("DistanceY", 0, 2, 0, 1, Q("30.1 mm")))
sketch11.addConstraint(Sketcher.Constraint("DistanceX", 4, 2, 2, 2, Q("10.0495 mm")))
sketch11.addConstraint(Sketcher.Constraint("DistanceY", 4, 2, 4, 1, Q("2.335066 mm")))
sketch11.addConstraint(Sketcher.Constraint("DistanceY", 0, 2, -1, 1, Q("17.877858 mm")))
sketch11.addConstraint(Sketcher.Constraint("DistanceY", -1, 1, 4, 2, Q("2.608609 mm")))
sketch11.addConstraint(Sketcher.Constraint("DistanceX", 0, 2, -1, 1, Q("164.136656 mm")))
sketch11.setExpression("Constraints[16]", "Params.sketch11_width")
pad10 = body7.newObject("PartDesign::Pad", "Pad009")
pad10.Profile = sketch11
pad10.setExpression("Length", "Params.pad10_length")

# Sketch on XY plane
sketch12 = body7.newObject("Sketcher::SketchObject", "Sketch011")
sketch12.AttachmentSupport = (doc.getObject("XY_Plane006"), [""])
sketch12.MapMode = "FlatFace"
sketch12.addGeometry(Part.Circle(App.Vector(-149.087156, -2.827858, 0), App.Vector(0, 0, 1), 9.525), False)
sketch12.addGeometry(Part.LineSegment(App.Vector(-144.087156, 4.943675, 0), App.Vector(-144.087156, 4.522795, 0)), False)
sketch12.addGeometry(Part.ArcOfCircle(Part.Circle(App.Vector(-149.087156, -2.827858, 0), App.Vector(0, 0, 1), 8.89), math.radians(0), math.radians(55.776005)), False)
sketch12.addGeometry(Part.ArcOfCircle(Part.Circle(App.Vector(-149.087156, -2.827858, 0), App.Vector(0, 0, 1), 8.89), math.radians(124.223995), math.radians(360)), False)
sketch12.addGeometry(Part.LineSegment(App.Vector(-154.087156, 4.522795, 0), App.Vector(-154.087156, 4.943675, 0)), False)
sketch12.addGeometry(Part.LineSegment(App.Vector(-154.087156, 4.943675, 0), App.Vector(-153.404027, 4.943675, 0)), False)
sketch12.addGeometry(Part.ArcOfCircle(Part.Circle(App.Vector(-149.087156, -2.827858, 0), App.Vector(0, 0, 1), 8.89), math.radians(60.949043), math.radians(119.050957)), False)
sketch12.addGeometry(Part.LineSegment(App.Vector(-144.770285, 4.943675, 0), App.Vector(-144.087156, 4.943675, 0)), False)
sketch12.addConstraint(Sketcher.Constraint("Coincident", 1, 2, 2, 2))
sketch12.addConstraint(Sketcher.Constraint("Tangent", 2, 1, 3, 2))
sketch12.addConstraint(Sketcher.Constraint("Coincident", 3, 1, 4, 1))
sketch12.addConstraint(Sketcher.Constraint("Coincident", 4, 2, 5, 1))
sketch12.addConstraint(Sketcher.Constraint("Coincident", 5, 2, 6, 2))
sketch12.addConstraint(Sketcher.Constraint("Coincident", 6, 1, 7, 1))
sketch12.addConstraint(Sketcher.Constraint("Coincident", 7, 2, 1, 1))
sketch12.addConstraint(Sketcher.Constraint("Vertical", 1))
sketch12.addConstraint(Sketcher.Constraint("Vertical", 4))
sketch12.addConstraint(Sketcher.Constraint("Horizontal", 5))
sketch12.addConstraint(Sketcher.Constraint("Horizontal", 7))
sketch12.addConstraint(Sketcher.Constraint("Coincident", 2, 3, 0, 3))
sketch12.addConstraint(Sketcher.Constraint("Coincident", 6, 3, 0, 3))
sketch12.addConstraint(Sketcher.Constraint("Equal", 2, 3))
sketch12.addConstraint(Sketcher.Constraint("Equal", 3, 6))
sketch12.addConstraint(Sketcher.Constraint("Horizontal", 6, 3, 2, 1))
sketch12.addConstraint(Sketcher.Constraint("Horizontal", 1, 2, 3, 1))
sketch12.addConstraint(Sketcher.Constraint("Horizontal", 5, 2, 6, 1))
sketch12.addConstraint(Sketcher.Constraint("Diameter", 0, Q("0.75 in")))
sketch12.addConstraint(Sketcher.Constraint("Radius", 2, Q("0.35 in")))
sketch12.addConstraint(Sketcher.Constraint("DistanceX", 5, 1, 5, 2, Q("0.683129 mm")))
sketch12.addConstraint(Sketcher.Constraint("DistanceY", 1, 2, 1, 1, Q("0.42088 mm")))
sketch12.addConstraint(Sketcher.Constraint("DistanceY", 0, 3, -1, 1, Q("2.827858 mm")))
sketch12.addConstraint(Sketcher.Constraint("DistanceX", 0, 3, -1, 1, Q("149.087156 mm")))
sketch12.setExpression("Constraints[18]", "Params.sketch12_diameter")
sketch12.setExpression("Constraints[19]", "Params.sketch12_radius")
pad11 = body7.newObject("PartDesign::Pad", "Pad010")
pad11.Profile = sketch12
pad11.setExpression("Length", "Params.pad11_length")
pad11.Reversed = True
body8 = doc.addObject("PartDesign::Body", "Body007")

# Sketch on XY plane
sketch13 = body8.newObject("Sketcher::SketchObject", "Sketch012")
sketch13.AttachmentSupport = (doc.getObject("XY_Plane007"), [""])
sketch13.MapMode = "FlatFace"
sketch13.addGeometry(Part.Circle(App.Vector(-68.649679, 39.455337, 0), App.Vector(0, 0, 1), 9.525), False)
sketch13.addGeometry(Part.Circle(App.Vector(-68.649679, 39.455337, 0), App.Vector(0, 0, 1), 8.89), False)
sketch13.addConstraint(Sketcher.Constraint("Coincident", 1, 3, 0, 3))
sketch13.addConstraint(Sketcher.Constraint("Diameter", 1, Q("0.7 in")))
sketch13.addConstraint(Sketcher.Constraint("Diameter", 0, Q("0.75 in")))
sketch13.addConstraint(Sketcher.Constraint("DistanceX", 0, 3, -1, 1, Q("68.649679 mm")))
sketch13.addConstraint(Sketcher.Constraint("DistanceY", -1, 1, 0, 3, Q("39.455337 mm")))
sketch13.setExpression("Constraints[1]", "Params.sketch13_diameter")
sketch13.setExpression("Constraints[2]", "Params.sketch13_diameter2")
pad12 = body8.newObject("PartDesign::Pad", "Pad011")
pad12.Profile = sketch13
pad12.setExpression("Length", "Params.pad12_length")

doc.recompute()
